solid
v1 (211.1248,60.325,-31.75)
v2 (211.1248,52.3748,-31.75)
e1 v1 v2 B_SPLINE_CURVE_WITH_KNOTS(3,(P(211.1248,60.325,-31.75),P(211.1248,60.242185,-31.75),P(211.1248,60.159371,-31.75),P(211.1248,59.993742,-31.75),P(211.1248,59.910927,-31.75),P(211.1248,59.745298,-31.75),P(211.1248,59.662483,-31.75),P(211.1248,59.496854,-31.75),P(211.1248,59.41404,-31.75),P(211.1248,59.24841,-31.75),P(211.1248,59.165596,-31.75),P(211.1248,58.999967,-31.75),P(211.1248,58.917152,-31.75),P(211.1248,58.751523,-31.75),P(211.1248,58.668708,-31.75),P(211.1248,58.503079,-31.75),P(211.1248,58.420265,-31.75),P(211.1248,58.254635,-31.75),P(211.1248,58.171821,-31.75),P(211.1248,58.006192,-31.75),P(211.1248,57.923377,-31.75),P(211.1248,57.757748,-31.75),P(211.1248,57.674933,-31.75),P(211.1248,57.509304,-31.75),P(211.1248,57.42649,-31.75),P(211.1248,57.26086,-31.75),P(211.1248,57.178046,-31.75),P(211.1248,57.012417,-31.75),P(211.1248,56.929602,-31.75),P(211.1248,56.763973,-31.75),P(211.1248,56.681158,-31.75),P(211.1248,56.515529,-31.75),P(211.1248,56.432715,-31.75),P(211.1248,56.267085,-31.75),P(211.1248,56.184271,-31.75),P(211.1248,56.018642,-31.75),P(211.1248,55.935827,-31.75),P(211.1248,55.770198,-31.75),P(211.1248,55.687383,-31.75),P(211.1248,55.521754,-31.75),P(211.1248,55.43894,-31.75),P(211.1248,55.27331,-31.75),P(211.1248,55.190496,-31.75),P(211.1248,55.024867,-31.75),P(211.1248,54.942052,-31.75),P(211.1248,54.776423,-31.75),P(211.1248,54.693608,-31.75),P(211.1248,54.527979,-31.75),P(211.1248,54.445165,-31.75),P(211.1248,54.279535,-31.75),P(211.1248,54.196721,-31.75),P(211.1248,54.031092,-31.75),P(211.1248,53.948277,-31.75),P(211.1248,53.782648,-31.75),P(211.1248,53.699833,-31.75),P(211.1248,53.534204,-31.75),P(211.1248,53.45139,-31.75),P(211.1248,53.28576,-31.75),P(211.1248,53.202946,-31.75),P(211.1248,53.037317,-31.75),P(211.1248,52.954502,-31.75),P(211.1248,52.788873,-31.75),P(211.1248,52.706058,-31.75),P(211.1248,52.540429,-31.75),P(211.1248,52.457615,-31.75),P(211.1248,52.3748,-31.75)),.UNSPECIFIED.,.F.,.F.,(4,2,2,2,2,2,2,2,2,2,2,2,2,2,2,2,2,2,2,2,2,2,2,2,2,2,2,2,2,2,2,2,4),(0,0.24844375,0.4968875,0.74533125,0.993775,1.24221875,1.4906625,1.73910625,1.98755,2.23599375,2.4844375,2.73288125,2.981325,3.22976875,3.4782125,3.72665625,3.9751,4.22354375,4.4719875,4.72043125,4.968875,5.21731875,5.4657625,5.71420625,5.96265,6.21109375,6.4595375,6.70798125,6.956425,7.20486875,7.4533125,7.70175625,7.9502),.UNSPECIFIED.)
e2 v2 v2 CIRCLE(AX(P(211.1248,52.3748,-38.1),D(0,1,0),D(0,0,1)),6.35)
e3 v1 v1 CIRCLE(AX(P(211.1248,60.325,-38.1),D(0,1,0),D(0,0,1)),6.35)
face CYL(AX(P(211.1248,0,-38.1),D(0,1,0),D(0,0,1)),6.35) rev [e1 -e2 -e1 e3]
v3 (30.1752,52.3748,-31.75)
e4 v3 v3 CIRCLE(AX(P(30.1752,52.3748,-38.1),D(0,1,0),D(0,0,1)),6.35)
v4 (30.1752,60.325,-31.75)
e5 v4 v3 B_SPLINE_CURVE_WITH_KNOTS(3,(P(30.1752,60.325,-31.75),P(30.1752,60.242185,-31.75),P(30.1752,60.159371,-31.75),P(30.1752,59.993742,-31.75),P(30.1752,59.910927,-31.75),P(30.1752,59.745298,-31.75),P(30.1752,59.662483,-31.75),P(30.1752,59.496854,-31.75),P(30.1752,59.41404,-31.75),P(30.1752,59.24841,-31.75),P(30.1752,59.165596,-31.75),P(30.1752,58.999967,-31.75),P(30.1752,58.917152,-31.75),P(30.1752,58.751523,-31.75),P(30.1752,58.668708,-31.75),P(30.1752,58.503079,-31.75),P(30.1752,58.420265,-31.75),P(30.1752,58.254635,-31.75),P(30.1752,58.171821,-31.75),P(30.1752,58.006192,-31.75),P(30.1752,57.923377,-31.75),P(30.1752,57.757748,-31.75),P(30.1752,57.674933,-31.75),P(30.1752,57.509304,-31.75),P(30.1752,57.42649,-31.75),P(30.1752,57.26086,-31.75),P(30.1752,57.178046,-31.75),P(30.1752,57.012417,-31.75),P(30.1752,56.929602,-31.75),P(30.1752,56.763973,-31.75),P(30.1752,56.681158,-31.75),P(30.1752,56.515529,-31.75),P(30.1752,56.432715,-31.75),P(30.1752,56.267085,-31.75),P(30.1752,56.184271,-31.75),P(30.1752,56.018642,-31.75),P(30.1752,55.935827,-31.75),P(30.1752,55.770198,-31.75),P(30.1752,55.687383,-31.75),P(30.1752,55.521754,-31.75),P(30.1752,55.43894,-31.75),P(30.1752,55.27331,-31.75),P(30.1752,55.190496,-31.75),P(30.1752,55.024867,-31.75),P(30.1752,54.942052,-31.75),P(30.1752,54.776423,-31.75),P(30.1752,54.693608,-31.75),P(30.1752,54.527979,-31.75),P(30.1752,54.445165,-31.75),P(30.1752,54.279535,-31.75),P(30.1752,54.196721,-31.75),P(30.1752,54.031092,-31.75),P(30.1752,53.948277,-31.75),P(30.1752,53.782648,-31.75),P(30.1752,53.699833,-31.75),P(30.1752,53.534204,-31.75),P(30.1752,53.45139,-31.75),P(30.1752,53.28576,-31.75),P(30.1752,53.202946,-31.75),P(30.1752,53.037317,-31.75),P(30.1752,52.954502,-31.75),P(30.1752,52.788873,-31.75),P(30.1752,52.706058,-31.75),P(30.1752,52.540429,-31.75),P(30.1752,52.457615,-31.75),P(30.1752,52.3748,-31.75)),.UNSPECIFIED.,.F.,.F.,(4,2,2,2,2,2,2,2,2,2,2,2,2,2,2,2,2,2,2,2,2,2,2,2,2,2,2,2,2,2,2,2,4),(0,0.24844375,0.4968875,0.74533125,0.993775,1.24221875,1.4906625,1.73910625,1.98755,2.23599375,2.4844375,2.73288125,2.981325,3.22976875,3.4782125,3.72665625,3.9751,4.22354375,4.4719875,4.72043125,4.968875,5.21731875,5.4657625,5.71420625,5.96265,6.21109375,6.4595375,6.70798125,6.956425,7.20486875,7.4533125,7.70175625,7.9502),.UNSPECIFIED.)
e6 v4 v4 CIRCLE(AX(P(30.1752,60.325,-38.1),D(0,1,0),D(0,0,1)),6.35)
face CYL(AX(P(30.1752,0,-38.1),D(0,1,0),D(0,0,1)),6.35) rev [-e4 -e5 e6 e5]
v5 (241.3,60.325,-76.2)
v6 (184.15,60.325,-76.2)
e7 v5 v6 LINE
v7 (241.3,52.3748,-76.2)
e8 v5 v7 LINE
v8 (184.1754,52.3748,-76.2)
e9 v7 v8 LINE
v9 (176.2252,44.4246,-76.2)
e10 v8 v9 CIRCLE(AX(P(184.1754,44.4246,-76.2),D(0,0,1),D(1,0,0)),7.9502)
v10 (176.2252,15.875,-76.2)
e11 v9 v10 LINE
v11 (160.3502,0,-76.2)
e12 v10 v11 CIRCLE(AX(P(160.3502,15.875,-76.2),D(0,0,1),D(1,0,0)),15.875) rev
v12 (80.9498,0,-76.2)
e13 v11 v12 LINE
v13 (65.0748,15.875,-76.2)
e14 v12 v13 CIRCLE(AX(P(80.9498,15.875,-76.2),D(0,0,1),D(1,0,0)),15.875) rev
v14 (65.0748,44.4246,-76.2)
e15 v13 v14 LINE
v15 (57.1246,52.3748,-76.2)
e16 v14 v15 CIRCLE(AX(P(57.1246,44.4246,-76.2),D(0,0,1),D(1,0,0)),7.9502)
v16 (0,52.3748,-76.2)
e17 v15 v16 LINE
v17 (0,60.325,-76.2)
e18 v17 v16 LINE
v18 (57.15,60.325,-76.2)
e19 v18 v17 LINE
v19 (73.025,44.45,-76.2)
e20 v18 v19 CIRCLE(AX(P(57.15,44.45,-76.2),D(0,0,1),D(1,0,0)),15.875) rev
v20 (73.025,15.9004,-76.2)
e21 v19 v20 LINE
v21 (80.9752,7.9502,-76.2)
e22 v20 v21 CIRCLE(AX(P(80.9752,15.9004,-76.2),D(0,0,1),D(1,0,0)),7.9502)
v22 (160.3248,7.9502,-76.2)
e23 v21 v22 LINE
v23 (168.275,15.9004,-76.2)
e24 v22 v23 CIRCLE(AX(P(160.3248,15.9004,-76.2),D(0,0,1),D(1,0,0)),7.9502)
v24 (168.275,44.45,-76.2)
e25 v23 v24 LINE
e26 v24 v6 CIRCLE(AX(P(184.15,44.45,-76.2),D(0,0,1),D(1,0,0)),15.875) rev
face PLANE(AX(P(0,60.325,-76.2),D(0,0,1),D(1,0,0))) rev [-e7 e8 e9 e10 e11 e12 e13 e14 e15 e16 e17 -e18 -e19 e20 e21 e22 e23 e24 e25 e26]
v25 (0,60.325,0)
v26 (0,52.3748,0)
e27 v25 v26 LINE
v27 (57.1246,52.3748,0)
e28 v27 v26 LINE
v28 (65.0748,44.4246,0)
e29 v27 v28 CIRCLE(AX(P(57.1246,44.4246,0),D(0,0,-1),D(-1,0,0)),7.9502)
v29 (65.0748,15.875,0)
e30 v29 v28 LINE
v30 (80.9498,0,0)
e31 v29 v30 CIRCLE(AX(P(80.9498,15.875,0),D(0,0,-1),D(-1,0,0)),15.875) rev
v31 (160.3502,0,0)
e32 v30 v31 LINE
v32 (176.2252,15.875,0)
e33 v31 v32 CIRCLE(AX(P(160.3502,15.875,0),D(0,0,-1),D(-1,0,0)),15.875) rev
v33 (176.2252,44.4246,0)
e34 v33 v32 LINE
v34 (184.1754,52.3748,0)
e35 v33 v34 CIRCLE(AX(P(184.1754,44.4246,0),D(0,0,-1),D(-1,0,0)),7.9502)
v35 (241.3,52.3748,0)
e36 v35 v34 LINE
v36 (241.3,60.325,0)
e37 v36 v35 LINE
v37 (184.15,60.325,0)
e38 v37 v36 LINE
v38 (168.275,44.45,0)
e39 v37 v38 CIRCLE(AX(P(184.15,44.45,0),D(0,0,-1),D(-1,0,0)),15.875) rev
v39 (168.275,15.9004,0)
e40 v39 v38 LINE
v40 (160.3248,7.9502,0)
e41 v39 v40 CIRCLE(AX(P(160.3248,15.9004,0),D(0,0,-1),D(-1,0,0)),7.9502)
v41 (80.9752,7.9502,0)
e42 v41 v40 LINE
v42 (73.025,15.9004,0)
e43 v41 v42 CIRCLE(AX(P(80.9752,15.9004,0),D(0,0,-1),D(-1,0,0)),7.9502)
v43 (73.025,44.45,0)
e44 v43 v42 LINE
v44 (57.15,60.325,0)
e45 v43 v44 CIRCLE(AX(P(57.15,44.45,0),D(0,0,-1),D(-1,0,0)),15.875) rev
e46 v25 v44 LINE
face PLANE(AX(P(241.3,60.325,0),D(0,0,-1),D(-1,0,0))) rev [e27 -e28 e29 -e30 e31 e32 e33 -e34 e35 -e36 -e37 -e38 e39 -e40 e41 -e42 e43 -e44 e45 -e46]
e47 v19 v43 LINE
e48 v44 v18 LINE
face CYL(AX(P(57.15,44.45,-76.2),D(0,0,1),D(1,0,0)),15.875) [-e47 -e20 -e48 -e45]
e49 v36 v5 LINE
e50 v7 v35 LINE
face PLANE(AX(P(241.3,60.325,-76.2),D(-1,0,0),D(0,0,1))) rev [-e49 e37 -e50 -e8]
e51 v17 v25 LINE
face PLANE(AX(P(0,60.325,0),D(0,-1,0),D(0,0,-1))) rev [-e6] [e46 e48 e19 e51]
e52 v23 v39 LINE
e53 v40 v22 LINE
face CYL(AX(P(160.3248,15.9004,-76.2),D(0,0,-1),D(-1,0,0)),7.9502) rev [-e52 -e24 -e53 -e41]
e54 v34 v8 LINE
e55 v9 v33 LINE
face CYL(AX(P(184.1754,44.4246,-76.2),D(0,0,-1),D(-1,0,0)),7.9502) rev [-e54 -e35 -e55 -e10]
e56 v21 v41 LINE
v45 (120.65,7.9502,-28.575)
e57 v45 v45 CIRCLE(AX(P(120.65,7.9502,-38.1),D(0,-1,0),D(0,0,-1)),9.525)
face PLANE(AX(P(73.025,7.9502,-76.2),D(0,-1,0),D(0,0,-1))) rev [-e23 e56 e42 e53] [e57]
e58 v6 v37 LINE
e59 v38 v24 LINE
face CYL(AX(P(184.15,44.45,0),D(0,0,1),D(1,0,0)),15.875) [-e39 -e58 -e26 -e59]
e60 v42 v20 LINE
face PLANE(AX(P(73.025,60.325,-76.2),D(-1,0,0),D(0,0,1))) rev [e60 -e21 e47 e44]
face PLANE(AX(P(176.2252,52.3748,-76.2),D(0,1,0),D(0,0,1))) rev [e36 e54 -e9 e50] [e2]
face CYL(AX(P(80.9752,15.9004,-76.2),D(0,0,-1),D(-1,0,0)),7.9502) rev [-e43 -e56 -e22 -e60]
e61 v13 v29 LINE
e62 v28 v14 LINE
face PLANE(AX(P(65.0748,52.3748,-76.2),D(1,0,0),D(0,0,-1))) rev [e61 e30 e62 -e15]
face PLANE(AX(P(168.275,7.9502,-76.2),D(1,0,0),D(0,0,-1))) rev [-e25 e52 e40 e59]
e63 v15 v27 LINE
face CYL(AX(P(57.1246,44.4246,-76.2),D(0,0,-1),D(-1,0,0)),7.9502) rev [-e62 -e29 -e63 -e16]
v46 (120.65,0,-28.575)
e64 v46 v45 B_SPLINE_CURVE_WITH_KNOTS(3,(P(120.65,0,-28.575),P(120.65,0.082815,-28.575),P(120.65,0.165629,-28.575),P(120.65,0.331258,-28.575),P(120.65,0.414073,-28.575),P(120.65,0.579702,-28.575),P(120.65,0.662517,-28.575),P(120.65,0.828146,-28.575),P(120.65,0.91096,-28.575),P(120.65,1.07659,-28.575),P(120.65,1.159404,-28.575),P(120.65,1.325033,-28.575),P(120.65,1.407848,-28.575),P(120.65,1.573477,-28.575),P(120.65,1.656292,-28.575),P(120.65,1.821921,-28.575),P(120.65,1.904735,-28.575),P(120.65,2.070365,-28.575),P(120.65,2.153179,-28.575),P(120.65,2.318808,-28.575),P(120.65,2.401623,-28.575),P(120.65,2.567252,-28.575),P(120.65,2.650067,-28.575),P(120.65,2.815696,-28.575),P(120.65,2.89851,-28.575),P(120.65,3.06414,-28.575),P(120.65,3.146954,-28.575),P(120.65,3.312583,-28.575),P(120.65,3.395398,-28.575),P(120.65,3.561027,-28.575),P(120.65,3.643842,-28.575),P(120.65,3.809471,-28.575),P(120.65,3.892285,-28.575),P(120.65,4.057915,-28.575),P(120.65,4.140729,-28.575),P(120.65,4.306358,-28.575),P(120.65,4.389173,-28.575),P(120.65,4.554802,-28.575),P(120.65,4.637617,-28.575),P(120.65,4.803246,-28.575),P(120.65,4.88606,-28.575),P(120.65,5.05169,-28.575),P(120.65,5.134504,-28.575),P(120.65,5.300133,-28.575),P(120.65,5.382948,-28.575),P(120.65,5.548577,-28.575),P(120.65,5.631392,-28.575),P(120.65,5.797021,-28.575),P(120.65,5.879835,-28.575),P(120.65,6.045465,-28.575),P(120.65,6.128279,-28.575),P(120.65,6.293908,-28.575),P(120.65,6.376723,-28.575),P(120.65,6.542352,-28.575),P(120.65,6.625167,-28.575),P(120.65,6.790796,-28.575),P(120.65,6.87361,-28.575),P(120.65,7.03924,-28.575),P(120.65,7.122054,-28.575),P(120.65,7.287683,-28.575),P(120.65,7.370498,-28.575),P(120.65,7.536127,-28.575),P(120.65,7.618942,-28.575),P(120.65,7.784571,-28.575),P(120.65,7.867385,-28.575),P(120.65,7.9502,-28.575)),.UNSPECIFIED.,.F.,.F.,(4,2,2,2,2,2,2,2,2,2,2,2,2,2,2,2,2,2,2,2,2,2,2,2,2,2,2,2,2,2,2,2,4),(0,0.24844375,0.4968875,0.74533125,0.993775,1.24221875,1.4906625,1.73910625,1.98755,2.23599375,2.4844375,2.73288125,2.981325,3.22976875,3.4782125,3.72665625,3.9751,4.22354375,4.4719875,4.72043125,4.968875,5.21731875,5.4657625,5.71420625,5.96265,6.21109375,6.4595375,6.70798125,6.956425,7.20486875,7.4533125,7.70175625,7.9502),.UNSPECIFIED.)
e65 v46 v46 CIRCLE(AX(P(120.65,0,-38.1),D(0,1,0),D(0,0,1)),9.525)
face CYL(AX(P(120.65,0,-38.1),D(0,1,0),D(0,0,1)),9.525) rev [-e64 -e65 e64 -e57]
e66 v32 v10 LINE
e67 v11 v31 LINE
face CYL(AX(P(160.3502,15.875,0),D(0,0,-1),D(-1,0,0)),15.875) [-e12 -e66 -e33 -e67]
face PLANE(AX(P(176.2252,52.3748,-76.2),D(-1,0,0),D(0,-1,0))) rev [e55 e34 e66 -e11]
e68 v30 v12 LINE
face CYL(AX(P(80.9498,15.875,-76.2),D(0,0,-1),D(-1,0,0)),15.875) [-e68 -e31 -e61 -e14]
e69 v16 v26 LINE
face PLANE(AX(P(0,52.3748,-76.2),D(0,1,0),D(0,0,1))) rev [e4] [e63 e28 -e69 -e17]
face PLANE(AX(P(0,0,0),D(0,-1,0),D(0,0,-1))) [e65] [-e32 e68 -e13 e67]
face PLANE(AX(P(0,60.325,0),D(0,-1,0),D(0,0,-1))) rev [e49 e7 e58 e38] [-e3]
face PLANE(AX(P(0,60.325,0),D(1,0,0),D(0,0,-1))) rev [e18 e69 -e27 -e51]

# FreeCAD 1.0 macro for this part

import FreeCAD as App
import Part
import Sketcher
from FreeCAD import Vector
Q = App.Units.Quantity


def edges_at(feature, points):
    """Names of the edges that pass closest to the given points."""
    edges = feature.Shape.Edges
    near = lambda p: min(range(len(edges)), key=lambda i: edges[i].distToShape(Part.Vertex(*p))[0])
    return sorted({f"Edge{near(p) + 1}" for p in points})

doc = App.newDocument("Part")
params = doc.addObject("Spreadsheet::Sheet", "Params")
for row, (alias, value) in enumerate([
    ("sketch1_height", "3 in"),
    ("sketch1_width", "9.5 in"),
    ("pad1_length", "2.375 in"),
    ("sketch2_width", "2.562 in"),
    ("sketch2_height", "2.062 in"),
    ("sketch3_width", "3.75 in"),
    ("sketch3_height", "2.062 in"),
    ("sketch4_width", "2.562 in"),
    ("sketch4_height", "2.062 in"),
    ("sketch5_diameter", "0.5 in"),
    ("sketch6_diameter", "0.75 in"),
    ("fillet_radius", "0.625 in"),
    ("fillet2_radius", "0.313 in"),
    ("fillet3_radius", "0.313 in"),
    ("fillet4_radius", "0.625 in"),
    ("fillet5_radius", "0.625 in"),
    ("fillet6_radius", "0.625 in"),
    ("fillet7_radius", "0.313 in"),
    ("fillet8_radius", "0.313 in"),
], start=1):
    params.set(f"A{row}", alias)
    params.set(f"B{row}", "=" + value)
    params.setAlias(f"B{row}", alias)

body = doc.addObject("PartDesign::Body", "Body")

sketch1 = body.newObject("Sketcher::SketchObject", "Sketch")
sketch1.AttachmentSupport = (doc.getObject("XZ_Plane"), [""])
sketch1.MapMode = "FlatFace"
sketch1.addGeometry([
    Part.LineSegment(Vector(0, -76, 0), Vector(0, 0, 0)),
    Part.LineSegment(Vector(0, 0, 0), Vector(241, 0, 0)),
    Part.LineSegment(Vector(241, 0, 0), Vector(241, -76, 0)),
    Part.LineSegment(Vector(241, -76, 0), Vector(0, -76, 0)),
], False)
sketch1.addConstraint([
    Sketcher.Constraint("Coincident", 0, 2, 1, 1),
    Sketcher.Constraint("Coincident", 1, 2, 2, 1),
    Sketcher.Constraint("Coincident", 2, 2, 3, 1),
    Sketcher.Constraint("Coincident", 3, 2, 0, 1),
    Sketcher.Constraint("Vertical", 0),
    Sketcher.Constraint("Horizontal", 1),
    Sketcher.Constraint("Vertical", 2),
    Sketcher.Constraint("Horizontal", 3),
    Sketcher.Constraint("Coincident", 0, 2, -1, 1),
    Sketcher.Constraint("DistanceY", 0, 1, 0, 2, Q("3 in")),
    Sketcher.Constraint("DistanceX", 1, 1, 1, 2, Q("9.5 in")),
])
sketch1.setExpression("Constraints[9]", "Params.sketch1_height")
sketch1.setExpression("Constraints[10]", "Params.sketch1_width")
pad1 = body.newObject("PartDesign::Pad", "Pad")
pad1.Profile = sketch1
pad1.setExpression("Length", "Params.pad1_length")
pad1.Reversed = True

sketch2 = body.newObject("Sketcher::SketchObject", "Sketch001")
sketch2.AttachmentSupport = (doc.getObject("XY_Plane"), [""])
sketch2.MapMode = "FlatFace"
sketch2.addGeometry([
    Part.LineSegment(Vector(176, 52, 0), Vector(176, 0, 0)),
    Part.LineSegment(Vector(176, 0, 0), Vector(241, 0, 0)),
    Part.LineSegment(Vector(241, 0, 0), Vector(241, 52, 0)),
    Part.LineSegment(Vector(241, 52, 0), Vector(176, 52, 0)),
], False)
sketch2.addConstraint([
    Sketcher.Constraint("Coincident", 0, 2, 1, 1),
    Sketcher.Constraint("Coincident", 1, 2, 2, 1),
    Sketcher.Constraint("Coincident", 2, 2, 3, 1),
    Sketcher.Constraint("Coincident", 3, 2, 0, 1),
    Sketcher.Constraint("Vertical", 0),
    Sketcher.Constraint("Horizontal", 1),
    Sketcher.Constraint("Vertical", 2),
    Sketcher.Constraint("Horizontal", 3),
    Sketcher.Constraint("PointOnObject", 0, 2, -1),
    Sketcher.Constraint("DistanceX", -1, 1, 1, 2, Q("9.5 in")),
    Sketcher.Constraint("DistanceX", 1, 1, 1, 2, Q("2.562 in")),
    Sketcher.Constraint("DistanceY", 0, 2, 0, 1, Q("2.062 in")),
])
sketch2.setExpression("Constraints[10]", "Params.sketch2_width")
sketch2.setExpression("Constraints[11]", "Params.sketch2_height")
pocket1 = body.newObject("PartDesign::Pocket", "Pocket")
pocket1.Profile = sketch2
pocket1.Type = "ThroughAll"

sketch3 = body.newObject("Sketcher::SketchObject", "Sketch002")
sketch3.AttachmentSupport = (doc.getObject("XY_Plane"), [""])
sketch3.MapMode = "FlatFace"
sketch3.addGeometry([
    Part.LineSegment(Vector(73, 60, 0), Vector(73, 8, 0)),
    Part.LineSegment(Vector(73, 8, 0), Vector(168, 8, 0)),
    Part.LineSegment(Vector(168, 8, 0), Vector(168, 60, 0)),
    Part.LineSegment(Vector(168, 60, 0), Vector(73, 60, 0)),
], False)
sketch3.addConstraint([
    Sketcher.Constraint("Coincident", 0, 2, 1, 1),
    Sketcher.Constraint("Coincident", 1, 2, 2, 1),
    Sketcher.Constraint("Coincident", 2, 2, 3, 1),
    Sketcher.Constraint("Coincident", 3, 2, 0, 1),
    Sketcher.Constraint("Vertical", 0),
    Sketcher.Constraint("Horizontal", 1),
    Sketcher.Constraint("Vertical", 2),
    Sketcher.Constraint("Horizontal", 3),
    Sketcher.Constraint("DistanceX", 1, 1, 1, 2, Q("3.75 in")),
    Sketcher.Constraint("DistanceY", 0, 2, 0, 1, Q("2.062 in")),
    Sketcher.Constraint("DistanceX", -1, 1, 0, 2, Q("2.875 in")),
    Sketcher.Constraint("DistanceY", -1, 1, 0, 2, Q("0.313 in")),
])
sketch3.setExpression("Constraints[8]", "Params.sketch3_width")
sketch3.setExpression("Constraints[9]", "Params.sketch3_height")
pocket2 = body.newObject("PartDesign::Pocket", "Pocket001")
pocket2.Profile = sketch3
pocket2.Type = "ThroughAll"

sketch4 = body.newObject("Sketcher::SketchObject", "Sketch003")
sketch4.AttachmentSupport = (doc.getObject("XY_Plane"), [""])
sketch4.MapMode = "FlatFace"
sketch4.addGeometry([
    Part.LineSegment(Vector(0, 52, 0), Vector(0, 0, 0)),
    Part.LineSegment(Vector(0, 0, 0), Vector(65, 0, 0)),
    Part.LineSegment(Vector(65, 0, 0), Vector(65, 52, 0)),
    Part.LineSegment(Vector(65, 52, 0), Vector(0, 52, 0)),
], False)
sketch4.addConstraint([
    Sketcher.Constraint("Coincident", 0, 2, 1, 1),
    Sketcher.Constraint("Coincident", 1, 2, 2, 1),
    Sketcher.Constraint("Coincident", 2, 2, 3, 1),
    Sketcher.Constraint("Coincident", 3, 2, 0, 1),
    Sketcher.Constraint("Vertical", 0),
    Sketcher.Constraint("Horizontal", 1),
    Sketcher.Constraint("Vertical", 2),
    Sketcher.Constraint("Horizontal", 3),
    Sketcher.Constraint("Coincident", 0, 2, -1, 1),
    Sketcher.Constraint("DistanceX", 1, 1, 1, 2, Q("2.562 in")),
    Sketcher.Constraint("DistanceY", 0, 2, 0, 1, Q("2.062 in")),
])
sketch4.setExpression("Constraints[9]", "Params.sketch4_width")
sketch4.setExpression("Constraints[10]", "Params.sketch4_height")
pocket3 = body.newObject("PartDesign::Pocket", "Pocket002")
pocket3.Profile = sketch4
pocket3.Type = "ThroughAll"

sketch5 = body.newObject("Sketcher::SketchObject", "Sketch004")
sketch5.AttachmentSupport = (doc.getObject("XZ_Plane"), [""])
sketch5.MapMode = "FlatFace"
sketch5.AttachmentOffset = App.Placement(Vector(0, 0, -2.375 * 25.4), App.Rotation())
sketch5.addGeometry([
    Part.Circle(Vector(30, -38, 0), Vector(0, 0, 1), 6),
    Part.Circle(Vector(211, -38, 0), Vector(0, 0, 1), 6),
], False)
sketch5.addConstraint([
    Sketcher.Constraint("Equal", 0, 1),
    Sketcher.Constraint("Horizontal", 0, 3, 1, 3),
    Sketcher.Constraint("Diameter", 0, Q("0.5 in")),
    Sketcher.Constraint("DistanceY", 0, 3, -1, 1, Q("1.5 in")),
    Sketcher.Constraint("DistanceX", -1, 1, 0, 3, Q("1.188 in")),
    Sketcher.Constraint("DistanceX", -1, 1, 1, 3, Q("8.312 in")),
])
sketch5.setExpression("Constraints[2]", "Params.sketch5_diameter")
pocket4 = body.newObject("PartDesign::Pocket", "Pocket003")
pocket4.Profile = sketch5
pocket4.Type = "ThroughAll"
pocket4.Reversed = True

sketch6 = body.newObject("Sketcher::SketchObject", "Sketch005")
sketch6.AttachmentSupport = (doc.getObject("XZ_Plane"), [""])
sketch6.MapMode = "FlatFace"
sketch6.AttachmentOffset = App.Placement(Vector(0, 0, -2.375 * 25.4), App.Rotation())
sketch6.addGeometry(Part.Circle(Vector(121, -38, 0), Vector(0, 0, 1), 10), False)
sketch6.addConstraint([
    Sketcher.Constraint("Diameter", 0, Q("0.75 in")),
    Sketcher.Constraint("DistanceY", 0, 3, -1, 1, Q("1.5 in")),
    Sketcher.Constraint("DistanceX", -1, 1, 0, 3, Q("4.75 in")),
])
sketch6.setExpression("Constraints[0]", "Params.sketch6_diameter")
pocket5 = body.newObject("PartDesign::Pocket", "Pocket004")
pocket5.Profile = sketch6
pocket5.Type = "ThroughAll"
pocket5.Reversed = True
doc.recompute()

fillet = body.newObject("PartDesign::Fillet", "Fillet")
fillet.Base = (pocket5, edges_at(pocket5, [(73.025, 60.325, -38.1)]))
fillet.setExpression("Radius", "Params.fillet_radius")
doc.recompute()

fillet2 = body.newObject("PartDesign::Fillet", "Fillet001")
fillet2.Base = (fillet, edges_at(fillet, [(73.025, 7.95, -38.1)]))
fillet2.setExpression("Radius", "Params.fillet2_radius")
doc.recompute()

fillet3 = body.newObject("PartDesign::Fillet", "Fillet002")
fillet3.Base = (fillet2, edges_at(fillet2, [(168.275, 7.95, -38.1)]))
fillet3.setExpression("Radius", "Params.fillet3_radius")
doc.recompute()

fillet4 = body.newObject("PartDesign::Fillet", "Fillet003")
fillet4.Base = (fillet3, edges_at(fillet3, [(168.275, 60.325, -38.1)]))
fillet4.setExpression("Radius", "Params.fillet4_radius")
doc.recompute()

fillet5 = body.newObject("PartDesign::Fillet", "Fillet004")
fillet5.Base = (fillet4, edges_at(fillet4, [(176.225, 0, -38.1)]))
fillet5.setExpression("Radius", "Params.fillet5_radius")
doc.recompute()

fillet6 = body.newObject("PartDesign::Fillet", "Fillet005")
fillet6.Base = (fillet5, edges_at(fillet5, [(65.075, 0, -38.1)]))
fillet6.setExpression("Radius", "Params.fillet6_radius")
doc.recompute()

fillet7 = body.newObject("PartDesign::Fillet", "Fillet006")
fillet7.Base = (fillet6, edges_at(fillet6, [(65.075, 52.375, -38.1)]))
fillet7.setExpression("Radius", "Params.fillet7_radius")
doc.recompute()

fillet8 = body.newObject("PartDesign::Fillet", "Fillet007")
fillet8.Base = (fillet7, edges_at(fillet7, [(176.225, 52.375, -38.1)]))
fillet8.setExpression("Radius", "Params.fillet8_radius")

doc.recompute()
